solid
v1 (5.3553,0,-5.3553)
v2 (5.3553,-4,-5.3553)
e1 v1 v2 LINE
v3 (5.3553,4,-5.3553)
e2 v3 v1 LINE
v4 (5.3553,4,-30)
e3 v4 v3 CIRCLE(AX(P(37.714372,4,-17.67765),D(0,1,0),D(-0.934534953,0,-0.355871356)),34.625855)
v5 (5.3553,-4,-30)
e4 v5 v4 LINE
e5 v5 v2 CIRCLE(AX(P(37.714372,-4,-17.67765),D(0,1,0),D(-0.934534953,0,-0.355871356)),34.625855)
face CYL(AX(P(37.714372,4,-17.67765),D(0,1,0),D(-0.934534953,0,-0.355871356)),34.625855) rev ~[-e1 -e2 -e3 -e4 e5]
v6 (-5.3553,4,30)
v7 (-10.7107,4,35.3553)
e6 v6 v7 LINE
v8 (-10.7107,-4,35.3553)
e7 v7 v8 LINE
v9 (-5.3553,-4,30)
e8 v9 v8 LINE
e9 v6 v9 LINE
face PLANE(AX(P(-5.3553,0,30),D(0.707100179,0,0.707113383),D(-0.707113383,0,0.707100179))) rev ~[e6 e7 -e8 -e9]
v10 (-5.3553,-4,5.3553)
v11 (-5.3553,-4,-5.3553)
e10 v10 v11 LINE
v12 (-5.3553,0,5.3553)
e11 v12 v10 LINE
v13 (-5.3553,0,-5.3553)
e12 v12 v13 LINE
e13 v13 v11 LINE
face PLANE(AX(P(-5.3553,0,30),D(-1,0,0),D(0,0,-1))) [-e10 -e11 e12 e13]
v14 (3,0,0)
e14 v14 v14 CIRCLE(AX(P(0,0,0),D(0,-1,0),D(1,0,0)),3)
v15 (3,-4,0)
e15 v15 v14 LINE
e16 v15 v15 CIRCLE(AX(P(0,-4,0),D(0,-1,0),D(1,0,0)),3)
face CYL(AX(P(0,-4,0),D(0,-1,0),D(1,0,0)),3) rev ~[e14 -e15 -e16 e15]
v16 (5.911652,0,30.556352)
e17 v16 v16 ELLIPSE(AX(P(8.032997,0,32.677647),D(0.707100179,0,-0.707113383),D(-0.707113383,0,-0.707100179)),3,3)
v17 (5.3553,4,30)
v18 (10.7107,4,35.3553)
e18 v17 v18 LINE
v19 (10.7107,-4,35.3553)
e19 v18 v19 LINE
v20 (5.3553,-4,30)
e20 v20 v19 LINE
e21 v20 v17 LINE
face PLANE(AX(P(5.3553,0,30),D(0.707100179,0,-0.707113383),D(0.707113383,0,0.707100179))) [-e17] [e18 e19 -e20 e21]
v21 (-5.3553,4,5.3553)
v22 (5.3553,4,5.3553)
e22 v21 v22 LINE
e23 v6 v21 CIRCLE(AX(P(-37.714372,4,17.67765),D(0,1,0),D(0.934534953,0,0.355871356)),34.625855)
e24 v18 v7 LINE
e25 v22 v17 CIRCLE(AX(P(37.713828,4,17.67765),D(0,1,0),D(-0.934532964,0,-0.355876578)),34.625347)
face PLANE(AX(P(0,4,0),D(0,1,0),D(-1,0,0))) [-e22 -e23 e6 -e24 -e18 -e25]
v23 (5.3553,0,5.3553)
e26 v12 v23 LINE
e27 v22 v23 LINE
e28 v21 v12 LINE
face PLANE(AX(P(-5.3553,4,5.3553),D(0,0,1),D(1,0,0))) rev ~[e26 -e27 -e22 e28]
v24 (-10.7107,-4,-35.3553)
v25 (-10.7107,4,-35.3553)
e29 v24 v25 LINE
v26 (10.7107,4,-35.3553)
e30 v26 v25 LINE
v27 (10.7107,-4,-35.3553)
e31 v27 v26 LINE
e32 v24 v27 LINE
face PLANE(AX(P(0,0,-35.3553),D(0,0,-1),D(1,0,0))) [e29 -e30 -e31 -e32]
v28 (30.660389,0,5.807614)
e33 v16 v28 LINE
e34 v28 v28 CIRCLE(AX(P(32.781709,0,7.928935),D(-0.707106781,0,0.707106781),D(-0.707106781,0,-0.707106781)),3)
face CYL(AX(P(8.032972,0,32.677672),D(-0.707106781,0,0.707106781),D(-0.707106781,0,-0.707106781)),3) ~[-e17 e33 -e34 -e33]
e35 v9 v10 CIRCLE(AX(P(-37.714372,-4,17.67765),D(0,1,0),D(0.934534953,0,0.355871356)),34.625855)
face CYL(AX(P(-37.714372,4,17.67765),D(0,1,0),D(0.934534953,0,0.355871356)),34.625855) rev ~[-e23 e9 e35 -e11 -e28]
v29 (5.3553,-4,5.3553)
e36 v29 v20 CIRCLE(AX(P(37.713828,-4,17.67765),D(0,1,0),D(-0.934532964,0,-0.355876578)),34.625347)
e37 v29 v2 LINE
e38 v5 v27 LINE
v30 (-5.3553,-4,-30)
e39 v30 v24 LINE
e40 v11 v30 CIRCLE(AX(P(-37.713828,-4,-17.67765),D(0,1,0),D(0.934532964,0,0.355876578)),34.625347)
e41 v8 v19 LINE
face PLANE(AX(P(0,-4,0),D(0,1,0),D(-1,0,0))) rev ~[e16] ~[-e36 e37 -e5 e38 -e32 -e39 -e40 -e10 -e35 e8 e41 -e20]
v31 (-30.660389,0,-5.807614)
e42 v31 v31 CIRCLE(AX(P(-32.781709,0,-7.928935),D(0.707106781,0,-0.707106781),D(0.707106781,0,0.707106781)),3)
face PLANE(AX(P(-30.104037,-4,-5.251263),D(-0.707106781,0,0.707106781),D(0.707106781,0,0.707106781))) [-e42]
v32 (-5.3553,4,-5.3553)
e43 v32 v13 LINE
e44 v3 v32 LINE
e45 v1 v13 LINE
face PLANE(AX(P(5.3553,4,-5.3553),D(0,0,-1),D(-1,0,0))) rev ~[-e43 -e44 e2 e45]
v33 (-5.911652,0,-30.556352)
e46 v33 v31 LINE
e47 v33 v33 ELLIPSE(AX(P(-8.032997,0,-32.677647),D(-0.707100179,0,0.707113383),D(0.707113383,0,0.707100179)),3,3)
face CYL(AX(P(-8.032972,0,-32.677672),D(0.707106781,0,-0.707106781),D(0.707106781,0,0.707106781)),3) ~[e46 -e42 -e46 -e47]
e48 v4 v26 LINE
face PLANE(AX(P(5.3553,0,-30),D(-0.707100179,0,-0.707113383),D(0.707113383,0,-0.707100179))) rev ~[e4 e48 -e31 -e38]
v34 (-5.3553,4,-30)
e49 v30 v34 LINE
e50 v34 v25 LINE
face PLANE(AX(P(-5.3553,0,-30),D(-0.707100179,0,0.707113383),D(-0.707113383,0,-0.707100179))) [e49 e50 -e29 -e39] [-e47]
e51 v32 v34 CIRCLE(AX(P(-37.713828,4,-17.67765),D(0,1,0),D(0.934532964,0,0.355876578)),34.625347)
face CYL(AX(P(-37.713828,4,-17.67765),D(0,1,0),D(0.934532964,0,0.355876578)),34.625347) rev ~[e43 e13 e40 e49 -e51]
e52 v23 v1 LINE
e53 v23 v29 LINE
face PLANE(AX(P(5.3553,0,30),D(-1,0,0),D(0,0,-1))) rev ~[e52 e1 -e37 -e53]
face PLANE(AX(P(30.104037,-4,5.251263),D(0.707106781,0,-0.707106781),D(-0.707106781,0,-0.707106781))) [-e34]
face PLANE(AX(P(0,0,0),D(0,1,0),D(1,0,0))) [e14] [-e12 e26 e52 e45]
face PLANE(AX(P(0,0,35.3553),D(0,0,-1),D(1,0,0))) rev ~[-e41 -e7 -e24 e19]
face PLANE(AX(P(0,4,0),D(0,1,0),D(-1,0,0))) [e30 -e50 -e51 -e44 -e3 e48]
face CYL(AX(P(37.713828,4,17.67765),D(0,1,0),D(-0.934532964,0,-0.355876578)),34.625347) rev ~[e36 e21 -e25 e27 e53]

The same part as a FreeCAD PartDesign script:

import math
import FreeCAD as App
import Part
import Sketcher
from FreeCAD import Vector
Q = App.Units.Quantity


def add_polygon(sketch, points):
    """Adds a closed chain of lines whose ends are joined by coincident constraints."""
    first, n = sketch.GeometryCount, len(points)
    for a, b in zip(points, points[1:] + points[:1]):
        sketch.addGeometry(Part.LineSegment(App.Vector(*a, 0), App.Vector(*b, 0)), False)
    for i in range(n):
        sketch.addConstraint(Sketcher.Constraint("Coincident", first + i, 2, first + (i + 1) % n, 1))

doc = App.newDocument("Part")
body = doc.addObject("PartDesign::Body", "Body")

# Sketch on XZ plane
sketch1 = body.newObject("Sketcher::SketchObject", "Sketch")
sketch1.AttachmentSupport = (doc.getObject("XZ_Plane"), [""])
sketch1.MapMode = "FlatFace"
add_polygon(sketch1, [(10.7107, 35.3553), (5.3553, 30), (5.3553, -30), (10.7107, -35.3553), (-10.7107, -35.3553), (-5.3553, -30), (-5.3553, 30), (-10.7107, 35.3553)])  # lines 0-7
sketch1.addConstraint([
    Sketcher.Constraint("Vertical", 1),
    Sketcher.Constraint("Horizontal", 3),
    Sketcher.Constraint("Vertical", 5),
    Sketcher.Constraint("Horizontal", 7),
    Sketcher.Constraint("Symmetric", 0, 2, 4, 2, -1, 1),
    Sketcher.Constraint("Symmetric", 2, 2, 6, 2, -1, 1),
    Sketcher.Constraint("Perpendicular", 0, 2),
    Sketcher.Constraint("Perpendicular", 2, 4),
    Sketcher.Constraint("Perpendicular", 4, 6),
    Sketcher.Constraint("Horizontal", 1, 2, 4, 2),
    Sketcher.Constraint("Vertical", 3, 2, 6, 2),
    Sketcher.Constraint("DistanceY", -1, 1, 0, 2, Q("30 mm")),
    Sketcher.Constraint("DistanceX", 3, 2, 3, 1, Q("21.4214 mm")),
    Sketcher.Constraint("DistanceX", 3, 2, 1, 2, Q("16.066 mm")),
])
pad1 = body.newObject("PartDesign::Pad", "Pad")
pad1.Profile = sketch1
pad1.Length = 8
pad1.Midplane = True

# Sketch on an angled plane
sketch2 = body.newObject("Sketcher::SketchObject", "Sketch001")
sketch2.Placement = App.Placement(Vector(5.3553, -4, 30), App.Rotation(Vector(-0.707106781, 0, -0.707106781), Vector(0, 0.999999999, 0), Vector(0.707106781, 0, -0.707106781), "ZXY"))
sketch2.addGeometry(Part.Circle(Vector(-3.7868, 4, 0), Vector(0, 0, 1), 3), False)
sketch2.addConstraint([
    Sketcher.Constraint("Diameter", 0, Q("6 mm")),
    Sketcher.Constraint("DistanceY", -1, 1, 0, 3, Q("4 mm")),
    Sketcher.Constraint("DistanceX", 0, 3, -1, 1, Q("3.7868 mm")),
])
pad2 = body.newObject("PartDesign::Pad", "Pad001")
pad2.Profile = sketch2
pad2.Length = 35
doc.recompute()

polarpattern = body.newObject("PartDesign::PolarPattern", "PolarPattern")
polarpattern.Originals = [pad2]
polarpattern.Axis = (doc.getObject("Y_Axis"), [""])
polarpattern.Angle = 360
polarpattern.Occurrences = 2
body.Tip = polarpattern

# Sketch on XZ plane
sketch3 = body.newObject("Sketcher::SketchObject", "Sketch002")
sketch3.AttachmentSupport = (doc.getObject("XZ_Plane"), [""])
sketch3.MapMode = "FlatFace"
sketch3.AttachmentOffset = App.Placement(Vector(0, 0, -4), App.Rotation())
sketch3.addGeometry([
    Part.LineSegment(Vector(-5.3553, -30, 0), Vector(-5.3553, -5.3553, 0)),  # 0
    Part.ArcOfCircle(Part.Circle(Vector(-37.7141, -17.6777, 0), Vector(0, 0, 1), 34.625619), math.radians(-20.84694), math.radians(20.847095)),  # 1
    Part.ArcOfCircle(Part.Circle(Vector(37.7141, -17.6777, 0), Vector(0, 0, 1), 34.625583), math.radians(159.152905), math.radians(200.84694)),  # 2
    Part.LineSegment(Vector(5.3553, -5.3553, 0), Vector(5.3553, -30, 0)),  # 3
    Part.LineSegment(Vector(5.3553, 30, 0), Vector(5.3553, 5.3553, 0)),  # 4
    Part.ArcOfCircle(Part.Circle(Vector(37.7141, 17.6777, 0), Vector(0, 0, 1), 34.625619), math.radians(159.15306), math.radians(200.847095)),  # 5
    Part.ArcOfCircle(Part.Circle(Vector(-37.7141, 17.6777, 0), Vector(0, 0, 1), 34.625583), math.radians(-20.847095), math.radians(20.84694)),  # 6
    Part.LineSegment(Vector(-5.3553, 5.3553, 0), Vector(-5.3553, 30, 0)),  # 7
], False)
sketch3.addConstraint([
    Sketcher.Constraint("Coincident", 0, 1, 1, 1),
    Sketcher.Constraint("Coincident", 1, 2, 0, 2),
    Sketcher.Constraint("Coincident", 2, 1, 3, 1),
    Sketcher.Constraint("Coincident", 3, 2, 2, 2),
    Sketcher.Constraint("Coincident", 4, 1, 5, 1),
    Sketcher.Constraint("Coincident", 5, 2, 4, 2),
    Sketcher.Constraint("Coincident", 6, 1, 7, 1),
    Sketcher.Constraint("Coincident", 7, 2, 6, 2),
    Sketcher.Constraint("Vertical", 0),
    Sketcher.Constraint("Vertical", 3),
    Sketcher.Constraint("Vertical", 4),
    Sketcher.Constraint("Vertical", 7),
    Sketcher.Constraint("Equal", 1, 2),
    Sketcher.Constraint("Equal", 2, 5),
    Sketcher.Constraint("Equal", 5, 6),
    Sketcher.Constraint("Symmetric", 1, 3, 5, 3, -1, 1),
    Sketcher.Constraint("Symmetric", 2, 3, 6, 3, -1, 1),
    Sketcher.Constraint("Symmetric", 1, 3, 2, 3, -2),
    Sketcher.Constraint("Horizontal", 1, 2, 2, 1),
    Sketcher.Constraint("Horizontal", 5, 2, 6, 1),
    Sketcher.Constraint("Vertical", 3, 2, 4, 1),
    Sketcher.Constraint("DistanceY", 0, 1, -1, 1, Q("30 mm")),
    Sketcher.Constraint("Radius", 1, Q("34.6256 mm")),
    Sketcher.Constraint("DistanceY", 0, 1, 0, 2, Q("24.6447 mm")),
    Sketcher.Constraint("DistanceX", 1, 3, -1, 1, Q("37.714 mm")),
])
pocket1 = body.newObject("PartDesign::Pocket", "Pocket")
pocket1.Profile = sketch3
pocket1.Length = 8
pocket1.Reversed = True

# Sketch on XZ plane
sketch4 = body.newObject("Sketcher::SketchObject", "Sketch003")
sketch4.AttachmentSupport = (doc.getObject("XZ_Plane"), [""])
sketch4.MapMode = "FlatFace"
sketch4.AttachmentOffset = App.Placement(Vector(0, 0, -4), App.Rotation())
add_polygon(sketch4, [(-5.3553, -5.3553), (-5.3553, 5.3553), (5.3553, 5.3553), (5.3553, -5.3553)])  # lines 0-3
sketch4.addConstraint([
    Sketcher.Constraint("Vertical", 0),
    Sketcher.Constraint("Horizontal", 1),
    Sketcher.Constraint("Vertical", 2),
    Sketcher.Constraint("Horizontal", 3),
    Sketcher.Constraint("Symmetric", 0, 2, 2, 2, -1, 1),
    Sketcher.Constraint("Equal", 3, 0),
    Sketcher.Constraint("DistanceX", 1, 1, 1, 2, Q("10.7106 mm")),
])
pocket2 = body.newObject("PartDesign::Pocket", "Pocket001")
pocket2.Profile = sketch4
pocket2.Length = 4
pocket2.Reversed = True

# Sketch on XZ plane
sketch5 = body.newObject("Sketcher::SketchObject", "Sketch004")
sketch5.AttachmentSupport = (doc.getObject("XZ_Plane"), [""])
sketch5.MapMode = "FlatFace"
sketch5.AttachmentOffset = App.Placement(Vector(0, 0, 4), App.Rotation())
sketch5.addGeometry(Part.Circle(Vector(0, 0, 0), Vector(0, 0, 1), 3), False)
sketch5.addConstraint([
    Sketcher.Constraint("Coincident", 0, 3, -1, 1),
    Sketcher.Constraint("Diameter", 0, Q("6 mm")),
])
pocket3 = body.newObject("PartDesign::Pocket", "Pocket002")
pocket3.Profile = sketch5
pocket3.Length = 4

doc.recompute()
